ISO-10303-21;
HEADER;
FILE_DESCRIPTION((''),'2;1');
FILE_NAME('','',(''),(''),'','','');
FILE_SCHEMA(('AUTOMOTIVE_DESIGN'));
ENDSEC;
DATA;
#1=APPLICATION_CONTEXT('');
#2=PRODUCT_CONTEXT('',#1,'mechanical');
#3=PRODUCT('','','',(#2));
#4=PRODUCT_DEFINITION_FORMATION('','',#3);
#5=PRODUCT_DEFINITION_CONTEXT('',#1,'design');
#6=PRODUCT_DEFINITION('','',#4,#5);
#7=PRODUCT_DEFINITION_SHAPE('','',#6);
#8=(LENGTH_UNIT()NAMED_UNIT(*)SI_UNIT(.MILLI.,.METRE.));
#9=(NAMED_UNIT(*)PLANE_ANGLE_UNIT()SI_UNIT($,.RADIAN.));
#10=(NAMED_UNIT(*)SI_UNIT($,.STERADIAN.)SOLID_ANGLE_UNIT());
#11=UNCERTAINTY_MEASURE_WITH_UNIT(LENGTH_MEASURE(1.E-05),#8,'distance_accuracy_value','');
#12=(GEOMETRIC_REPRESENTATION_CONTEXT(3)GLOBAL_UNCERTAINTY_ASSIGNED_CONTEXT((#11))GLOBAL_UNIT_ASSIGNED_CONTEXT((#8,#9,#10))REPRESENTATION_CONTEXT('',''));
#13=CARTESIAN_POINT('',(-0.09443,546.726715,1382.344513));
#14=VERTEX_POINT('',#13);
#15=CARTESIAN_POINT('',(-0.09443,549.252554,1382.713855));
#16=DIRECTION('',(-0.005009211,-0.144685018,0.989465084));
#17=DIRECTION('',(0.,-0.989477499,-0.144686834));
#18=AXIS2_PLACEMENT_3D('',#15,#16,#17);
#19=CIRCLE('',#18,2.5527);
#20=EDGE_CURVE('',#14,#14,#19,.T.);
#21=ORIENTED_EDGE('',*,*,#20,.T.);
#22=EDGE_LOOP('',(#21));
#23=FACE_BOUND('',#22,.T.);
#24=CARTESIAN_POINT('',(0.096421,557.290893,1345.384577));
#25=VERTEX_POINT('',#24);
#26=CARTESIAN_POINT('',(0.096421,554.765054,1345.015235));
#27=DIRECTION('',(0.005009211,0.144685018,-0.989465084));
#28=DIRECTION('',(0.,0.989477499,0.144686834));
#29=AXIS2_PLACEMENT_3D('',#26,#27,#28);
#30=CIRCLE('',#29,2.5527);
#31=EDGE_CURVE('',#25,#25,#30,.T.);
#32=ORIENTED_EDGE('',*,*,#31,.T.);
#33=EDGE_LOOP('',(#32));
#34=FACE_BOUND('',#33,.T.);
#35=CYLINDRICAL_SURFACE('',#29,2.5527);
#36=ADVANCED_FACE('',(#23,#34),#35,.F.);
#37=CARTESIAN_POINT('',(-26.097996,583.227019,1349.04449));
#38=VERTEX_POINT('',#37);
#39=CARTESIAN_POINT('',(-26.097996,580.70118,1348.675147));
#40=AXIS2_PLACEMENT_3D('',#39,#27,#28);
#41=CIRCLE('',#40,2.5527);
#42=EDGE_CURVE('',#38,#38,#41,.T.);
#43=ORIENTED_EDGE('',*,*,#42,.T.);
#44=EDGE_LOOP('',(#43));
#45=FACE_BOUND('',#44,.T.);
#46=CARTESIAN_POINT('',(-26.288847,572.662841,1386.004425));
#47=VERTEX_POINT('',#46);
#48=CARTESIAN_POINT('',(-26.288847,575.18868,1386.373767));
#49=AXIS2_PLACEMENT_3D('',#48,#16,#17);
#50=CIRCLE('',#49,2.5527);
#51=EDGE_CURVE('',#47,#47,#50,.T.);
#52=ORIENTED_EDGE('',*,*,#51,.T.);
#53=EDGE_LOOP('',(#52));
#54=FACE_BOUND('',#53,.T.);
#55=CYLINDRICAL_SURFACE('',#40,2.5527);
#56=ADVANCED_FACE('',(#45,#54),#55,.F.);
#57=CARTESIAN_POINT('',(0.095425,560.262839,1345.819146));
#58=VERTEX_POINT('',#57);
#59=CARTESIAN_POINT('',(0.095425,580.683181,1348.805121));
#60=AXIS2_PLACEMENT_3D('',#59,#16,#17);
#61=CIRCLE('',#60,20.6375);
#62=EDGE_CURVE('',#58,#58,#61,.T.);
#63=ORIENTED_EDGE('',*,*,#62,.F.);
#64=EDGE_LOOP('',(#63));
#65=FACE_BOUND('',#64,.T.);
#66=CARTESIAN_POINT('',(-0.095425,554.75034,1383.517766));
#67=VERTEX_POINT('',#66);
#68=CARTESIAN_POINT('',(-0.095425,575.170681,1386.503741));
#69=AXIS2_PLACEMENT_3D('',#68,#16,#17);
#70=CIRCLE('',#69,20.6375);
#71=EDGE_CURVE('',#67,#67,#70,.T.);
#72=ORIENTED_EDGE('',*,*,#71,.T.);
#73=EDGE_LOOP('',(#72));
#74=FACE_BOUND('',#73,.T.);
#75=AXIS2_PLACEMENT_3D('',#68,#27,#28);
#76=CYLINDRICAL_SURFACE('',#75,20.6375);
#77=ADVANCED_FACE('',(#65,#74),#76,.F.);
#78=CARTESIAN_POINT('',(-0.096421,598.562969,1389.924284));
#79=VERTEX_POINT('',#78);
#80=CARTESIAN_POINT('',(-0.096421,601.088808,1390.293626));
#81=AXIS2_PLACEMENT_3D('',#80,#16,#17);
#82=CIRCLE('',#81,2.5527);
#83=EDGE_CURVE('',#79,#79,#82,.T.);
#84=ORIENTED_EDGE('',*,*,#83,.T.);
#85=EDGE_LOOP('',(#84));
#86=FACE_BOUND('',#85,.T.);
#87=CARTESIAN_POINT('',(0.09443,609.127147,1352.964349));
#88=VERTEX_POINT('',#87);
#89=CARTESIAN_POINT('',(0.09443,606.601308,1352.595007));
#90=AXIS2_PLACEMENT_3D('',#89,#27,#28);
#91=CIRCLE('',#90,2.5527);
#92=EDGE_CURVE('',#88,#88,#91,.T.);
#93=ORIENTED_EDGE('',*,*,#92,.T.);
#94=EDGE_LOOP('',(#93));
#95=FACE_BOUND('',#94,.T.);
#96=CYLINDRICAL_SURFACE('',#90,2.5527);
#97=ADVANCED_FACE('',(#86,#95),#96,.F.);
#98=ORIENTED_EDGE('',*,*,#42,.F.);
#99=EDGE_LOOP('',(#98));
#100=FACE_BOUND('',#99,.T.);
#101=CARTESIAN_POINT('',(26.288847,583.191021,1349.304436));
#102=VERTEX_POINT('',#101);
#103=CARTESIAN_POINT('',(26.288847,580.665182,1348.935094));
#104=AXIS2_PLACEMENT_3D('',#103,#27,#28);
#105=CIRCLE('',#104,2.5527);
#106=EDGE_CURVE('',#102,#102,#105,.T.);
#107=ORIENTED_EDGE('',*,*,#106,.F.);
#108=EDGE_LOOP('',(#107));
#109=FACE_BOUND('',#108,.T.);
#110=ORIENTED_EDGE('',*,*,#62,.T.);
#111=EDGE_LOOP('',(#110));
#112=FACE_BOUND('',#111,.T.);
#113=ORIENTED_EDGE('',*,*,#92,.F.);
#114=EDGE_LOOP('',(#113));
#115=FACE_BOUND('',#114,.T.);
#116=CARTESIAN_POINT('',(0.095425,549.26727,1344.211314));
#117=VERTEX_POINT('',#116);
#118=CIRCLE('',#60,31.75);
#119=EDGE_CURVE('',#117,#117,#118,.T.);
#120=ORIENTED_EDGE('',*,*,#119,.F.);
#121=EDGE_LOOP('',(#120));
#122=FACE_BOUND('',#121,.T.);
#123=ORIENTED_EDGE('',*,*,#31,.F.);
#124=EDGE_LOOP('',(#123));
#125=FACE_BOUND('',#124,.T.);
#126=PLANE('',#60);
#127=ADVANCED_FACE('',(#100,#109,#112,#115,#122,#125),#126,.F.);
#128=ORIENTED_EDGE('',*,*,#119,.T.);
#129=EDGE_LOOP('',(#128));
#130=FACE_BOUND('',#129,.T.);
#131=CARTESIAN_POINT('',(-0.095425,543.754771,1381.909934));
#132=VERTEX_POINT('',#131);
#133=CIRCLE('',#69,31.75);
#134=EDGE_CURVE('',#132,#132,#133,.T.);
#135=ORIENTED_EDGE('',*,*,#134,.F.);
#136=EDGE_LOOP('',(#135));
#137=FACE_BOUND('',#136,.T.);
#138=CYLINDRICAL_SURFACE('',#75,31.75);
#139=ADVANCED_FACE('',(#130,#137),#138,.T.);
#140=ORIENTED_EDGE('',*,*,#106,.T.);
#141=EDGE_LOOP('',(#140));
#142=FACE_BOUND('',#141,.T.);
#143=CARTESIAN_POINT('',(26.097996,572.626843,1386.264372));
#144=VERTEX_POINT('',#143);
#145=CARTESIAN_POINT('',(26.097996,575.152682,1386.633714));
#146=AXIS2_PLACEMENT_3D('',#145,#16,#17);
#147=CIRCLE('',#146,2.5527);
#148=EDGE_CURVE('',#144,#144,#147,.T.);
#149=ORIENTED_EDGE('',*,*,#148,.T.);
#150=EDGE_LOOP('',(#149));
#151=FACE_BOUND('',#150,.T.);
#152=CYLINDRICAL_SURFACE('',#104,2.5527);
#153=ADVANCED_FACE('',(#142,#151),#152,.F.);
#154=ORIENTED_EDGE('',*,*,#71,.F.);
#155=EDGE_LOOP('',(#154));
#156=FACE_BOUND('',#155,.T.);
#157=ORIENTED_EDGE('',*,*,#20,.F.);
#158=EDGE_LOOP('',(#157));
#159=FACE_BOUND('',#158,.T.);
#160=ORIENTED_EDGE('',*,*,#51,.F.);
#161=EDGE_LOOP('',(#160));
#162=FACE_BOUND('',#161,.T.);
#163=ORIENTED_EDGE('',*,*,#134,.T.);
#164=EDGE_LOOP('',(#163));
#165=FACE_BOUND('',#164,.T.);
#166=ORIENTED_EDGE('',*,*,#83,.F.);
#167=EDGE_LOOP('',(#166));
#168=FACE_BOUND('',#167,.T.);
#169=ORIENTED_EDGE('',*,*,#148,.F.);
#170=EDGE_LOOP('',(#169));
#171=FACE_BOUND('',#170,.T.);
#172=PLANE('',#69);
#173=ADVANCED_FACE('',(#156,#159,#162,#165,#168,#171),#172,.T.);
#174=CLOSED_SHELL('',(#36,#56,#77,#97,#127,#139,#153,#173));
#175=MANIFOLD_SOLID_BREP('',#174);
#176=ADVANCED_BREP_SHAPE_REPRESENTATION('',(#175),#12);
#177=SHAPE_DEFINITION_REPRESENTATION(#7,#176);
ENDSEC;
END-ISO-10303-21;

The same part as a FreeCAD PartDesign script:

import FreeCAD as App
import Part
import Sketcher
from FreeCAD import Vector
Q = App.Units.Quantity

doc = App.newDocument("Part")
body = doc.addObject("PartDesign::Body", "Body")

sketch1 = body.newObject("Sketcher::SketchObject", "Sketch")
sketch1.Placement = App.Placement(Vector(0, 577.926931, 1367.654431), App.Rotation(Vector(0.999987453, -0.000687148, 0.004962002), Vector(-0.000038018, 0.989477525, 0.144686645), Vector(-0.005009211, -0.144685018, 0.989465084), "ZXY"))
sketch1.addGeometry([
    Part.Circle(Vector(0, 0, 0), Vector(0, 0, 1), 31.75),
    Part.Circle(Vector(0, 0, 0), Vector(0, 0, 1), 20.6375),
], False)
sketch1.addConstraint([
    Sketcher.Constraint("Coincident", 0, 3, -1, 1),
    Sketcher.Constraint("Coincident", 1, 3, -1, 1),
    Sketcher.Constraint("Diameter", 0, Q("2.5 in")),
    Sketcher.Constraint("Diameter", 1, Q("1.625 in")),
])
pad1 = body.newObject("PartDesign::Pad", "Pad")
pad1.Profile = sketch1
pad1.Length = Q("1.5 in")
pad1.Midplane = True

sketch2 = body.newObject("Sketcher::SketchObject", "Sketch001")
sketch2.Placement = App.Placement(Vector(-6.264414, -180.940036, 1237.404195), App.Rotation(Vector(-0.999987401, 0.001044934, -0.004909685), Vector(0.000323568, 0.989477211, 0.144688429), Vector(0.005009211, 0.144685018, -0.989465084), "ZXY"))
sketch2.addGeometry([
    Part.Circle(Vector(-32.304605, 769.73877, 0), Vector(0, 0, 1), 2.5527),
    Part.Circle(Vector(-6.101385, 795.923047, 0), Vector(0, 0, 1), 2.5527),
    Part.Circle(Vector(20.082892, 769.719827, 0), Vector(0, 0, 1), 2.5527),
    Part.Circle(Vector(-6.120328, 743.535551, 0), Vector(0, 0, 1), 2.5527),
], False)
sketch2.addConstraint([
    Sketcher.Constraint("Equal", 0, 1),
    Sketcher.Constraint("Equal", 1, 2),
    Sketcher.Constraint("Equal", 2, 3),
    Sketcher.Constraint("Diameter", 0, Q("0.201 in")),
    Sketcher.Constraint("DistanceX", 0, 3, 2, 3, Q("2.0624999 in")),
    Sketcher.Constraint("DistanceY", 3, 3, 1, 3, Q("2.0624999 in")),
    Sketcher.Constraint("DistanceY", -1, 1, 0, 3, Q("769.73877 mm")),
    Sketcher.Constraint("DistanceX", -1, 1, 2, 3, Q("20.082892 mm")),
    Sketcher.Constraint("DistanceY", -1, 1, 3, 3, Q("743.535551 mm")),
    Sketcher.Constraint("DistanceX", 0, 3, 1, 3, Q("26.20322 mm")),
    Sketcher.Constraint("DistanceY", 2, 3, 1, 3, Q("26.20322 mm")),
    Sketcher.Constraint("DistanceX", 3, 3, 2, 3, Q("26.20322 mm")),
])
doc.recompute()
hole = body.newObject("PartDesign::Hole", "Hole")
hole.Profile = sketch2
hole.ThreadType = "None"
hole.Diameter = Q("0.201 in")
hole.DepthType = "Dimension"
hole.Depth = Q("1.5 in")
hole.DrillPoint = "Flat"

doc.recompute()
